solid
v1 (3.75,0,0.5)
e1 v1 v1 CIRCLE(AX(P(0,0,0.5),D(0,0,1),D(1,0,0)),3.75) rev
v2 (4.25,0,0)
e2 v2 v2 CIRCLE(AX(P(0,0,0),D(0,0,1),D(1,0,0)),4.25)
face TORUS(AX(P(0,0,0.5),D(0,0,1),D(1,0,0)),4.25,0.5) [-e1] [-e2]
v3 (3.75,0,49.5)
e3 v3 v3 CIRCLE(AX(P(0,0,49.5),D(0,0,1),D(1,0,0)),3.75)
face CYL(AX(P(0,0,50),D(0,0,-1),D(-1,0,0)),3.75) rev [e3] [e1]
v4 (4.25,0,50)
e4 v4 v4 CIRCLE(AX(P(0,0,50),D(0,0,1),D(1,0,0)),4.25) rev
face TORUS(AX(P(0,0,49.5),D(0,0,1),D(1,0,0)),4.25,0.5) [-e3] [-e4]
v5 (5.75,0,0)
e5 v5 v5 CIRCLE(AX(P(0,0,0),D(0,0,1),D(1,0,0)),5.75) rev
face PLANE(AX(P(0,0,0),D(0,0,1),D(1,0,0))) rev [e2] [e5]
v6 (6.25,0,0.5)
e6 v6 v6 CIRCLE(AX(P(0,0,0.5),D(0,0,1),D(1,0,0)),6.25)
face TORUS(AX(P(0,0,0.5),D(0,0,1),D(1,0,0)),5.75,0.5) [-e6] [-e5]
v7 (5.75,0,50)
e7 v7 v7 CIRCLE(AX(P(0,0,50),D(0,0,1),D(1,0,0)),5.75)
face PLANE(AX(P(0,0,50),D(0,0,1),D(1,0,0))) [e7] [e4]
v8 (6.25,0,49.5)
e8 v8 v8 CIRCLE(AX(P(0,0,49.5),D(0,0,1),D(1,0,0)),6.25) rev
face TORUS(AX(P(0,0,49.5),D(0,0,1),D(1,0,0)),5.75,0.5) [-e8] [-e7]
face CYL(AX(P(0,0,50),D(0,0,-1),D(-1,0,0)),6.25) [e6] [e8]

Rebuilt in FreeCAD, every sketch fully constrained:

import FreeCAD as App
import Part
import Sketcher


def edges_at(feature, points):
    """Names of the edges that pass closest to the given points."""
    edges = feature.Shape.Edges
    near = lambda p: min(range(len(edges)), key=lambda i: edges[i].distToShape(Part.Vertex(*p))[0])
    return sorted({f"Edge{near(p) + 1}" for p in points})

doc = App.newDocument("Part")
params = doc.addObject("Spreadsheet::Sheet", "Params")
for row, (alias, value) in enumerate([
    ("sketch1_diameter", "12.5 mm"),
    ("sketch1_diameter2", "7.5 mm"),
    ("pad1_length", "50 mm"),
    ("fillet_radius", "0.5 mm"),
], start=1):
    params.set(f"A{row}", alias)
    params.set(f"B{row}", "=" + value)
    params.setAlias(f"B{row}", alias)

body = doc.addObject("PartDesign::Body", "Body")

sketch1 = body.newObject("Sketcher::SketchObject", "Sketch")
sketch1.AttachmentSupport = (doc.getObject("XY_Plane"), [""])
sketch1.MapMode = "FlatFace"
sketch1.addGeometry([
    Part.Circle(App.Vector(0, 0, 0), App.Vector(0, 0, 1), 6.2),
    Part.Circle(App.Vector(0, 0, 0), App.Vector(0, 0, 1), 3.8),
], False)
sketch1.addConstraint([
    Sketcher.Constraint("Coincident", 0, 3, -1, 1),
    Sketcher.Constraint("Coincident", 1, 3, -1, 1),
    Sketcher.Constraint("Diameter", 0, 12.5),
    Sketcher.Constraint("Diameter", 1, 7.5),
])
sketch1.setExpression("Constraints[2]", "Params.sketch1_diameter")
sketch1.setExpression("Constraints[3]", "Params.sketch1_diameter2")
pad1 = body.newObject("PartDesign::Pad", "Pad")
pad1.Profile = sketch1
pad1.setExpression("Length", "Params.pad1_length")
doc.recompute()

fillet = body.newObject("PartDesign::Fillet", "Fillet")
fillet.Base = (pad1, edges_at(pad1, [
    (-6.25, 0, 0),
    (-6.25, 0, 50),
    (-3.75, 0, 0),
    (-3.75, 0, 50),
]))
fillet.setExpression("Radius", "Params.fillet_radius")

doc.recompute()
